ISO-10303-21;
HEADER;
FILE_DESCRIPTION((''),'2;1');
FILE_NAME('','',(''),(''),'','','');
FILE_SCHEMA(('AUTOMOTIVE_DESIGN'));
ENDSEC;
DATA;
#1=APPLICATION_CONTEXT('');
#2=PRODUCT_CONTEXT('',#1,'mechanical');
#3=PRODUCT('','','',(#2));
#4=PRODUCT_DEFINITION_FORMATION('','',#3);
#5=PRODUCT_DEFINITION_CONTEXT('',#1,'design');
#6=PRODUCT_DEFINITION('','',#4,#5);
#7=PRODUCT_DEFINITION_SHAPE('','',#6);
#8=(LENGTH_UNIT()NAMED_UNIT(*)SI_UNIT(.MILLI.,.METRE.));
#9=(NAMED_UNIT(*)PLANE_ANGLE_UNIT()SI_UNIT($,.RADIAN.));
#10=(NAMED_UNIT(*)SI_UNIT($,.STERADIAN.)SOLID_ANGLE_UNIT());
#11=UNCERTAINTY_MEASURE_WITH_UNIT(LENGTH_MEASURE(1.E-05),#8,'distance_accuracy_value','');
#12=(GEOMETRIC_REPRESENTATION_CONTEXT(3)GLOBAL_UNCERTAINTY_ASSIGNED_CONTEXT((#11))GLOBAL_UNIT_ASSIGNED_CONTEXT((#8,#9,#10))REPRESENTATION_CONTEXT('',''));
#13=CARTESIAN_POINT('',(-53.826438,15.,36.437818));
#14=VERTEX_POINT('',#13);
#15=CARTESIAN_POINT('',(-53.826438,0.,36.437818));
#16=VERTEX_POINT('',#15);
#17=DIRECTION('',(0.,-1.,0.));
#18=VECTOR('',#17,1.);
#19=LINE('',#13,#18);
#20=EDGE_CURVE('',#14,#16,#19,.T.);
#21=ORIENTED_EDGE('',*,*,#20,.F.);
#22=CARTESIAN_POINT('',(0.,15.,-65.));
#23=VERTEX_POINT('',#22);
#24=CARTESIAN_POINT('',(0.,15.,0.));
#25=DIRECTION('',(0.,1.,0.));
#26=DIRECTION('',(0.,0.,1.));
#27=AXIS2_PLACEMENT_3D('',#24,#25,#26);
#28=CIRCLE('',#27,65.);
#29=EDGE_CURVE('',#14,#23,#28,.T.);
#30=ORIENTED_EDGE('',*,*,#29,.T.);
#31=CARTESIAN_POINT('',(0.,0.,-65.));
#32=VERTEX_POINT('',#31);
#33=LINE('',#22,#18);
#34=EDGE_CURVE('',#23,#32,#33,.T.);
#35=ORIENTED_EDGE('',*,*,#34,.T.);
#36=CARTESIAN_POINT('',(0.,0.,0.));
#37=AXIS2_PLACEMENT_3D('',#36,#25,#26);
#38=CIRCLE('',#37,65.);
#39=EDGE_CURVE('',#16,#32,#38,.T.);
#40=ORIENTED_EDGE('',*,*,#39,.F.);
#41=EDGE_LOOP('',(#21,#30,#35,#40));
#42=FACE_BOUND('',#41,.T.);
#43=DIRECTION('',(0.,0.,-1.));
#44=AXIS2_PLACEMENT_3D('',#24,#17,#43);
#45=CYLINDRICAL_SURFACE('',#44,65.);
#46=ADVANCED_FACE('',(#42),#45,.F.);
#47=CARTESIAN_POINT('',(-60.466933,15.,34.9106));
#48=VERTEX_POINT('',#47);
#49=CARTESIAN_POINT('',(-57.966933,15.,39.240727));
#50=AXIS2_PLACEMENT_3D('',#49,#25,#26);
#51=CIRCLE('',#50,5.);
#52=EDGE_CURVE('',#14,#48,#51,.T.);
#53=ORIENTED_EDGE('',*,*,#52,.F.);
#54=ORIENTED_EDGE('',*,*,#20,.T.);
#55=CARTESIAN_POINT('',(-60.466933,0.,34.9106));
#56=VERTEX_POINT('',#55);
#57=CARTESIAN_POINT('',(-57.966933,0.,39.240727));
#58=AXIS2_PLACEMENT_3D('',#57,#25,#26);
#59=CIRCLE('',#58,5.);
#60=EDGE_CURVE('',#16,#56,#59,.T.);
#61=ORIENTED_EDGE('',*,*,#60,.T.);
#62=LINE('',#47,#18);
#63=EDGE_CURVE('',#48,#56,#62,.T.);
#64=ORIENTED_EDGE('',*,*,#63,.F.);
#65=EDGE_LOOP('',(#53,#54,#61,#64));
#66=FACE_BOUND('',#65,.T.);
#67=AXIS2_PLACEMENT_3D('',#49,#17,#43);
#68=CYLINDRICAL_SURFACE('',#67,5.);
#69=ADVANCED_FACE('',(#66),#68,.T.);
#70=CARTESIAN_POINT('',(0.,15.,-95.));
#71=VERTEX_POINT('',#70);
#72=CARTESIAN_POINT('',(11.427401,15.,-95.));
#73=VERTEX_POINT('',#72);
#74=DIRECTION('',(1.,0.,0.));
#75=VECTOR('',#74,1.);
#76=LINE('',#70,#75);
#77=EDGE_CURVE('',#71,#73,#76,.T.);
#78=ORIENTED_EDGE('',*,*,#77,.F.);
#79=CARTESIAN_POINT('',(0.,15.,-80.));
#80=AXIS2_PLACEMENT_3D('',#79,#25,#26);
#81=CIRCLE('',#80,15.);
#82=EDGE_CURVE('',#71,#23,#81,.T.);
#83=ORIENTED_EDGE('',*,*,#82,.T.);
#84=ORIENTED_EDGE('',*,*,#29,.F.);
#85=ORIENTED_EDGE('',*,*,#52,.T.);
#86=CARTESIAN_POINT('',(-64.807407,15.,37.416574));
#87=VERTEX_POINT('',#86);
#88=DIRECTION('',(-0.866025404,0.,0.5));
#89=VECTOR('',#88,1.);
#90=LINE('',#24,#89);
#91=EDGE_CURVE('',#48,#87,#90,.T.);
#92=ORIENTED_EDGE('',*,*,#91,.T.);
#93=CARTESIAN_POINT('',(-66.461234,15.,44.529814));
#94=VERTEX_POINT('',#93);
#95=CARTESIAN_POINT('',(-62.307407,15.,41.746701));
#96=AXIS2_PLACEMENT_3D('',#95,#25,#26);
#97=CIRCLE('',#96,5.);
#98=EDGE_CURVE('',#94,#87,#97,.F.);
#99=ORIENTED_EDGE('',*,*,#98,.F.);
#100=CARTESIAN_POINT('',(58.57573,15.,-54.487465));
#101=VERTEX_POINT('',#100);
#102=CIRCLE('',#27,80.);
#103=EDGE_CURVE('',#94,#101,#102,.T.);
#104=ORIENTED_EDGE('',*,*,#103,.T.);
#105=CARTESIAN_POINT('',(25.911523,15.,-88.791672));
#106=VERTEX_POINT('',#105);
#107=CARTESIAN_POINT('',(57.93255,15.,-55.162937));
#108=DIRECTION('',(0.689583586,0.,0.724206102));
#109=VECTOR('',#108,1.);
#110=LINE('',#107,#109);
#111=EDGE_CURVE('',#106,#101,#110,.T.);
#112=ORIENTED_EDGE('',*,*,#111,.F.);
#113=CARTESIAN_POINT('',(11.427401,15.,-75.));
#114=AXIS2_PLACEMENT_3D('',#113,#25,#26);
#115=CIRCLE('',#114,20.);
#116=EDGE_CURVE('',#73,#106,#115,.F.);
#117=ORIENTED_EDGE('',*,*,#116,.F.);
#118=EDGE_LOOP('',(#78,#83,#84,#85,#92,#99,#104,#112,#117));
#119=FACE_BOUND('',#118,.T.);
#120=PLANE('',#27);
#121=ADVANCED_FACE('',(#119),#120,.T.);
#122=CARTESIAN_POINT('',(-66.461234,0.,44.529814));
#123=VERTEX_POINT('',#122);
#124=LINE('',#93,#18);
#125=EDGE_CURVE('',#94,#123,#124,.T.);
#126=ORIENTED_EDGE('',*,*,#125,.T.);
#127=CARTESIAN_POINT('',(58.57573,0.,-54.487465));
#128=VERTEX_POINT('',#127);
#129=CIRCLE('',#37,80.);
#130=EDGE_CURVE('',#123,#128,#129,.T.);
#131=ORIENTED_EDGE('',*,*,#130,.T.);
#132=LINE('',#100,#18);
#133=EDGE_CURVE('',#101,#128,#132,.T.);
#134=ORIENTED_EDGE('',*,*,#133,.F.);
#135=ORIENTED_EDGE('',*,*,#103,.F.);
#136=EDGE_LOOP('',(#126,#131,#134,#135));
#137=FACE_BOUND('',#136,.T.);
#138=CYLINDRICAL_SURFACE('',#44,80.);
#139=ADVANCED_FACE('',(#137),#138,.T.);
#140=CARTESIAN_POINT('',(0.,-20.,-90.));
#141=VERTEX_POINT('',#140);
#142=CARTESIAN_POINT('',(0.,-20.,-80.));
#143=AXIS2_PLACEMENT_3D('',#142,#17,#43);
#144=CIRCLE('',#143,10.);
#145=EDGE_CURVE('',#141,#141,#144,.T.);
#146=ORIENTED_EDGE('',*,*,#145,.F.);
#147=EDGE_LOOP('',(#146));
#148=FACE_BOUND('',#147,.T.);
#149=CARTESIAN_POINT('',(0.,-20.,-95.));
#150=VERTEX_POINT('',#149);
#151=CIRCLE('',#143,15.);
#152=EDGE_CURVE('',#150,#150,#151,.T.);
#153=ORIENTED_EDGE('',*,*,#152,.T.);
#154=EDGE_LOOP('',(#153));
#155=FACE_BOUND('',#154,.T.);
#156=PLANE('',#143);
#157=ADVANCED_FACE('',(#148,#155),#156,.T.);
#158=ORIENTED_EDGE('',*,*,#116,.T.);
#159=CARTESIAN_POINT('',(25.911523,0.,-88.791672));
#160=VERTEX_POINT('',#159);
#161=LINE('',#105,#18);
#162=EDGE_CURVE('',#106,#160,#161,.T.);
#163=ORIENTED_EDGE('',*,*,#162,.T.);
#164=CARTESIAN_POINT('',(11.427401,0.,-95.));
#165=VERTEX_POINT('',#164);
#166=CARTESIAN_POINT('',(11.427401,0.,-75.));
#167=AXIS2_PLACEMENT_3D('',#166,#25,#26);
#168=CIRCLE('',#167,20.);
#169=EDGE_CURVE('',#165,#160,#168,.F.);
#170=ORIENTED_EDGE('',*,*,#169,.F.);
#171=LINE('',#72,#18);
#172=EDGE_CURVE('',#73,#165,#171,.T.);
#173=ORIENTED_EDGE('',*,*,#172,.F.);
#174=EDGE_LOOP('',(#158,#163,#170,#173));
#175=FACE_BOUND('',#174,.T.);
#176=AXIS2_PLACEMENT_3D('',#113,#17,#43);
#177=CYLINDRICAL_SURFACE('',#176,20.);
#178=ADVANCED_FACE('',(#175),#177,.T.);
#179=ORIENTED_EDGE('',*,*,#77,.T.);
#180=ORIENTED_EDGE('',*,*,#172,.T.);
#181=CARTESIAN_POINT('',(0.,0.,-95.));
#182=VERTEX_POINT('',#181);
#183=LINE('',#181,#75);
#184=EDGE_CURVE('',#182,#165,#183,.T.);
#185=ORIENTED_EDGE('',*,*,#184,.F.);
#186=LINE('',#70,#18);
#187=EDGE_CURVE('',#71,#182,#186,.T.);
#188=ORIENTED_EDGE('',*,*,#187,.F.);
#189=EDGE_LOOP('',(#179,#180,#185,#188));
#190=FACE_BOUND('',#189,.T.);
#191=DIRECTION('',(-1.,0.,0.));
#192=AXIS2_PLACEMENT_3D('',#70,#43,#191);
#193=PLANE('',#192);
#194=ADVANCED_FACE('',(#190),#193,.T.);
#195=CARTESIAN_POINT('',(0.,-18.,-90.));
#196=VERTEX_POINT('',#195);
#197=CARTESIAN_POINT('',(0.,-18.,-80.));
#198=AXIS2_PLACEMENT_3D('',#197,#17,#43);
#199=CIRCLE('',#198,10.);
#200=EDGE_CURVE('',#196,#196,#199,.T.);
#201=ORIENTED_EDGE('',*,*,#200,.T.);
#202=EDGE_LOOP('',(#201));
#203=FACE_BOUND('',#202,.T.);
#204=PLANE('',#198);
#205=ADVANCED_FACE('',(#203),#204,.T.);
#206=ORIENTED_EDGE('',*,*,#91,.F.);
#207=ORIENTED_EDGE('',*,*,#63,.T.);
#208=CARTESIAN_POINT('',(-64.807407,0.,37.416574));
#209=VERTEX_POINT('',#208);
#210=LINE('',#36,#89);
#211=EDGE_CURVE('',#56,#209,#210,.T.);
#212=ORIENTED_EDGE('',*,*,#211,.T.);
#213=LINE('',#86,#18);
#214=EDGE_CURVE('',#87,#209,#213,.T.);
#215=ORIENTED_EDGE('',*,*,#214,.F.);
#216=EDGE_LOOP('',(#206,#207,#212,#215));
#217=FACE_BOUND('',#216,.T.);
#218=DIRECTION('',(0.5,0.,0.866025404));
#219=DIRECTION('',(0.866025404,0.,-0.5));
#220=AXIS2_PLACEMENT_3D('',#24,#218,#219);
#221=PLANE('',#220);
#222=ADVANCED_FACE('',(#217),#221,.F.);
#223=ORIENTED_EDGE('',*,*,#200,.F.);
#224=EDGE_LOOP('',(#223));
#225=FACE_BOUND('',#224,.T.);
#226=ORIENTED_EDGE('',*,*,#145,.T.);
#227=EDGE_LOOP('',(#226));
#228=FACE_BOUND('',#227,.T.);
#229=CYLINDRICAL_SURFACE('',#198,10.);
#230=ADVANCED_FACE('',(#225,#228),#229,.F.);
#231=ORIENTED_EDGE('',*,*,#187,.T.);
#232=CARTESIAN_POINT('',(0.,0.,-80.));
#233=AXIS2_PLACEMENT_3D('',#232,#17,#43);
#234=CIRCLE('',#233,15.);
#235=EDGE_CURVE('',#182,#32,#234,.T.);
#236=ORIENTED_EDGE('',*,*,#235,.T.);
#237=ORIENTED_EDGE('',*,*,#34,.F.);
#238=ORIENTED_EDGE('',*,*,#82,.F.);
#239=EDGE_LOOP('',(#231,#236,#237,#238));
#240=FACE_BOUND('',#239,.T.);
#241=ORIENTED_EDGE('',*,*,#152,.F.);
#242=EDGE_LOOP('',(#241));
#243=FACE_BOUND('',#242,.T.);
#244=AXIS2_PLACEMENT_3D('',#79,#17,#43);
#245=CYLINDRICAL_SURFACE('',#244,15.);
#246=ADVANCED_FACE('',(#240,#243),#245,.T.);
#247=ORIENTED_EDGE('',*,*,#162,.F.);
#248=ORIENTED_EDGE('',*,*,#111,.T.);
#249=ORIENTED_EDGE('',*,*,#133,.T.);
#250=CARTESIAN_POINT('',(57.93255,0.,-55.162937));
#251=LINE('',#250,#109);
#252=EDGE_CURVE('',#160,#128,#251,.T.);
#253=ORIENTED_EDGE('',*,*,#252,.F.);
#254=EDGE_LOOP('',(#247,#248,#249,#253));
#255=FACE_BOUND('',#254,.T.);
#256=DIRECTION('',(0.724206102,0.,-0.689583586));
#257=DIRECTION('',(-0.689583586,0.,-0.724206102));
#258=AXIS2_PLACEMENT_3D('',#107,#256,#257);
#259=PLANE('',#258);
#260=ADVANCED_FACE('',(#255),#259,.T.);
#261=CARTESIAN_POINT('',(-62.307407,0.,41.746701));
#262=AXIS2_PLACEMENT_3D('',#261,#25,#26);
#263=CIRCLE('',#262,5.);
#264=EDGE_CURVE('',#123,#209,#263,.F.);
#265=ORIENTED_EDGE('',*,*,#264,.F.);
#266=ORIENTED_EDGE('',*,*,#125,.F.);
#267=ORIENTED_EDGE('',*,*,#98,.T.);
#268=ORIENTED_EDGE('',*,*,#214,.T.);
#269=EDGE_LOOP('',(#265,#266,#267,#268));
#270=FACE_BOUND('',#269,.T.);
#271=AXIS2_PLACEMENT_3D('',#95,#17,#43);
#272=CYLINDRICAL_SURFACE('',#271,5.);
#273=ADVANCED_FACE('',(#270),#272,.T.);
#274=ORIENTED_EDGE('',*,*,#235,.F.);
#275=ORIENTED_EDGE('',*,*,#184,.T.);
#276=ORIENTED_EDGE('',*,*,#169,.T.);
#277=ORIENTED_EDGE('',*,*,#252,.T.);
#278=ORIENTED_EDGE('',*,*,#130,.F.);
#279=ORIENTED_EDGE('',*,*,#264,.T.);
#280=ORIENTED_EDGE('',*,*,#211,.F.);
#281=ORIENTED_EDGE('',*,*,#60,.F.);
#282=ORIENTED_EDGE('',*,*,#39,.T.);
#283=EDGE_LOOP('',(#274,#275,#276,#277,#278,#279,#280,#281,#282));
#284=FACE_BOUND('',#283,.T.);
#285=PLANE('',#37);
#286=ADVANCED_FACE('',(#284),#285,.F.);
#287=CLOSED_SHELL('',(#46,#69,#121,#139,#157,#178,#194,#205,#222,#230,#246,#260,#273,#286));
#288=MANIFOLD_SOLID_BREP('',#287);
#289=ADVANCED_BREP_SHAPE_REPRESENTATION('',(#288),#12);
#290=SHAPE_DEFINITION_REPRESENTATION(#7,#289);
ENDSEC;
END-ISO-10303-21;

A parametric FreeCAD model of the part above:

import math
import FreeCAD as App
import Part
import Sketcher

V = App.Vector
Q = App.Units.Quantity

doc = App.newDocument("Part")
params = doc.addObject("Spreadsheet::Sheet", "Params")
for row, (alias, value) in enumerate([
    ("sketch1_radius", "5 mm"),
    ("sketch1_radius2", "80 mm"),
    ("sketch1_radius3", "20 mm"),
    ("sketch1_radius4", "15 mm"),
    ("sketch1_radius5", "65 mm"),
    ("pad1_length", "15 mm"),
    ("sketch2_diameter", "30 mm"),
    ("pad2_length", "20 mm"),
    ("sketch3_diameter", "20 mm"),
    ("pocket1_length", "2 mm"),
], start=1):
    params.set(f"A{row}", alias)
    params.set(f"B{row}", "=" + value)
    params.setAlias(f"B{row}", alias)

body = doc.addObject("PartDesign::Body", "Body")

# Sketch on XZ plane
sketch1 = body.newObject("Sketcher::SketchObject", "Sketch")
sketch1.AttachmentSupport = (doc.getObject("XZ_Plane"), [""])
sketch1.MapMode = "FlatFace"
sketch1.addGeometry([
    Part.ArcOfCircle(Part.Circle(V(-58, 39.2, 0), V(0, 0, 1), 5), math.radians(-120), math.radians(-34)),  # 0
    Part.LineSegment(V(-60.5, 34.9, 0), V(-64.8, 37.4, 0)),  # 1
    Part.ArcOfCircle(Part.Circle(V(-62.3, 41.7, 0), V(0, 0, 1), 5), math.radians(146), math.radians(240)),  # 2
    Part.ArcOfCircle(Part.Circle(V(0, 0, 0), V(0, 0, 1), 80), math.radians(-43), math.radians(146)),  # 3
    Part.LineSegment(V(58.6, -54.5, 0), V(57.3, -55.8, 0)),  # 4
    Part.LineSegment(V(57.3, -55.8, 0), V(25.9, -88.8, 0)),  # 5
    Part.ArcOfCircle(Part.Circle(V(11.4, -75, 0), V(0, 0, 1), 20), math.radians(-90), math.radians(-44)),  # 6
    Part.LineSegment(V(11.4, -95, 0), V(0, -95, 0)),  # 7
    Part.ArcOfCircle(Part.Circle(V(0, -80, 0), V(0, 0, 1), 15), math.radians(90), math.radians(270)),  # 8
    Part.ArcOfCircle(Part.Circle(V(0, 0, 0), V(0, 0, 1), 65), math.radians(-90), math.radians(146)),  # 9
], False)
sketch1.addConstraint([
    Sketcher.Constraint("Tangent", 0, 1, 1, 1),
    Sketcher.Constraint("Tangent", 1, 2, 2, 2),
    Sketcher.Constraint("Tangent", 2, 1, 3, 2),
    Sketcher.Constraint("Coincident", 3, 1, 4, 1),
    Sketcher.Constraint("Coincident", 4, 2, 5, 1),
    Sketcher.Constraint("Tangent", 5, 2, 6, 2),
    Sketcher.Constraint("Tangent", 6, 1, 7, 1),
    Sketcher.Constraint("Tangent", 7, 2, 8, 2),
    Sketcher.Constraint("Tangent", 8, 1, 9, 1),
    Sketcher.Constraint("Tangent", 9, 2, 0, 2),
    Sketcher.Constraint("Horizontal", 7),
    Sketcher.Constraint("Coincident", 3, 3, -1, 1),
    Sketcher.Constraint("Coincident", 9, 3, -1, 1),
    Sketcher.Constraint("Equal", 0, 2),
    Sketcher.Constraint("PointOnObject", 8, 3, -2),
    Sketcher.Constraint("Parallel", 4, 5),
    Sketcher.Constraint("Radius", 0, 5.0),
    Sketcher.Constraint("Radius", 3, 80.0),
    Sketcher.Constraint("Radius", 6, 20.0),
    Sketcher.Constraint("Radius", 8, 15.0),
    Sketcher.Constraint("Radius", 9, 65.0),
    Sketcher.Constraint("Angle", 1, Q("150 deg")),
    Sketcher.Constraint("DistanceX", 7, 2, 7, 1, 11.427401),
    Sketcher.Constraint("DistanceY", -1, 1, 2, 3, 41.746701),
    Sketcher.Constraint("DistanceX", -1, 1, 3, 1, 58.57573),
    Sketcher.Constraint("DistanceX", -1, 1, 4, 2, 57.289371),
])
sketch1.setExpression("Constraints[16]", "Params.sketch1_radius")
sketch1.setExpression("Constraints[17]", "Params.sketch1_radius2")
sketch1.setExpression("Constraints[18]", "Params.sketch1_radius3")
sketch1.setExpression("Constraints[19]", "Params.sketch1_radius4")
sketch1.setExpression("Constraints[20]", "Params.sketch1_radius5")
pad1 = body.newObject("PartDesign::Pad", "Pad")
pad1.Profile = sketch1
pad1.setExpression("Length", "Params.pad1_length")
pad1.Reversed = True

# Sketch on XZ plane
sketch2 = body.newObject("Sketcher::SketchObject", "Sketch001")
sketch2.AttachmentSupport = (doc.getObject("XZ_Plane"), [""])
sketch2.MapMode = "FlatFace"
sketch2.AttachmentOffset = App.Placement(V(0, 0, 20), App.Rotation())
sketch2.addGeometry(Part.Circle(V(0, -80, 0), V(0, 0, 1), 15), False)
sketch2.addConstraint([
    Sketcher.Constraint("PointOnObject", 0, 3, -2),
    Sketcher.Constraint("Diameter", 0, 30.0),
    Sketcher.Constraint("DistanceY", 0, 3, -1, 1, 80.0),
])
sketch2.setExpression("Constraints[1]", "Params.sketch2_diameter")
pad2 = body.newObject("PartDesign::Pad", "Pad001")
pad2.Profile = sketch2
pad2.setExpression("Length", "Params.pad2_length")
pad2.Reversed = True

# Sketch on XZ plane
sketch3 = body.newObject("Sketcher::SketchObject", "Sketch002")
sketch3.AttachmentSupport = (doc.getObject("XZ_Plane"), [""])
sketch3.MapMode = "FlatFace"
sketch3.AttachmentOffset = App.Placement(V(0, 0, 20), App.Rotation())
sketch3.addGeometry(Part.Circle(V(0, -80, 0), V(0, 0, 1), 10), False)
sketch3.addConstraint([
    Sketcher.Constraint("PointOnObject", 0, 3, -2),
    Sketcher.Constraint("Diameter", 0, 20.0),
    Sketcher.Constraint("DistanceY", 0, 3, -1, 1, 80.0),
])
sketch3.setExpression("Constraints[1]", "Params.sketch3_diameter")
pocket1 = body.newObject("PartDesign::Pocket", "Pocket")
pocket1.Profile = sketch3
pocket1.setExpression("Length", "Params.pocket1_length")

doc.recompute()
